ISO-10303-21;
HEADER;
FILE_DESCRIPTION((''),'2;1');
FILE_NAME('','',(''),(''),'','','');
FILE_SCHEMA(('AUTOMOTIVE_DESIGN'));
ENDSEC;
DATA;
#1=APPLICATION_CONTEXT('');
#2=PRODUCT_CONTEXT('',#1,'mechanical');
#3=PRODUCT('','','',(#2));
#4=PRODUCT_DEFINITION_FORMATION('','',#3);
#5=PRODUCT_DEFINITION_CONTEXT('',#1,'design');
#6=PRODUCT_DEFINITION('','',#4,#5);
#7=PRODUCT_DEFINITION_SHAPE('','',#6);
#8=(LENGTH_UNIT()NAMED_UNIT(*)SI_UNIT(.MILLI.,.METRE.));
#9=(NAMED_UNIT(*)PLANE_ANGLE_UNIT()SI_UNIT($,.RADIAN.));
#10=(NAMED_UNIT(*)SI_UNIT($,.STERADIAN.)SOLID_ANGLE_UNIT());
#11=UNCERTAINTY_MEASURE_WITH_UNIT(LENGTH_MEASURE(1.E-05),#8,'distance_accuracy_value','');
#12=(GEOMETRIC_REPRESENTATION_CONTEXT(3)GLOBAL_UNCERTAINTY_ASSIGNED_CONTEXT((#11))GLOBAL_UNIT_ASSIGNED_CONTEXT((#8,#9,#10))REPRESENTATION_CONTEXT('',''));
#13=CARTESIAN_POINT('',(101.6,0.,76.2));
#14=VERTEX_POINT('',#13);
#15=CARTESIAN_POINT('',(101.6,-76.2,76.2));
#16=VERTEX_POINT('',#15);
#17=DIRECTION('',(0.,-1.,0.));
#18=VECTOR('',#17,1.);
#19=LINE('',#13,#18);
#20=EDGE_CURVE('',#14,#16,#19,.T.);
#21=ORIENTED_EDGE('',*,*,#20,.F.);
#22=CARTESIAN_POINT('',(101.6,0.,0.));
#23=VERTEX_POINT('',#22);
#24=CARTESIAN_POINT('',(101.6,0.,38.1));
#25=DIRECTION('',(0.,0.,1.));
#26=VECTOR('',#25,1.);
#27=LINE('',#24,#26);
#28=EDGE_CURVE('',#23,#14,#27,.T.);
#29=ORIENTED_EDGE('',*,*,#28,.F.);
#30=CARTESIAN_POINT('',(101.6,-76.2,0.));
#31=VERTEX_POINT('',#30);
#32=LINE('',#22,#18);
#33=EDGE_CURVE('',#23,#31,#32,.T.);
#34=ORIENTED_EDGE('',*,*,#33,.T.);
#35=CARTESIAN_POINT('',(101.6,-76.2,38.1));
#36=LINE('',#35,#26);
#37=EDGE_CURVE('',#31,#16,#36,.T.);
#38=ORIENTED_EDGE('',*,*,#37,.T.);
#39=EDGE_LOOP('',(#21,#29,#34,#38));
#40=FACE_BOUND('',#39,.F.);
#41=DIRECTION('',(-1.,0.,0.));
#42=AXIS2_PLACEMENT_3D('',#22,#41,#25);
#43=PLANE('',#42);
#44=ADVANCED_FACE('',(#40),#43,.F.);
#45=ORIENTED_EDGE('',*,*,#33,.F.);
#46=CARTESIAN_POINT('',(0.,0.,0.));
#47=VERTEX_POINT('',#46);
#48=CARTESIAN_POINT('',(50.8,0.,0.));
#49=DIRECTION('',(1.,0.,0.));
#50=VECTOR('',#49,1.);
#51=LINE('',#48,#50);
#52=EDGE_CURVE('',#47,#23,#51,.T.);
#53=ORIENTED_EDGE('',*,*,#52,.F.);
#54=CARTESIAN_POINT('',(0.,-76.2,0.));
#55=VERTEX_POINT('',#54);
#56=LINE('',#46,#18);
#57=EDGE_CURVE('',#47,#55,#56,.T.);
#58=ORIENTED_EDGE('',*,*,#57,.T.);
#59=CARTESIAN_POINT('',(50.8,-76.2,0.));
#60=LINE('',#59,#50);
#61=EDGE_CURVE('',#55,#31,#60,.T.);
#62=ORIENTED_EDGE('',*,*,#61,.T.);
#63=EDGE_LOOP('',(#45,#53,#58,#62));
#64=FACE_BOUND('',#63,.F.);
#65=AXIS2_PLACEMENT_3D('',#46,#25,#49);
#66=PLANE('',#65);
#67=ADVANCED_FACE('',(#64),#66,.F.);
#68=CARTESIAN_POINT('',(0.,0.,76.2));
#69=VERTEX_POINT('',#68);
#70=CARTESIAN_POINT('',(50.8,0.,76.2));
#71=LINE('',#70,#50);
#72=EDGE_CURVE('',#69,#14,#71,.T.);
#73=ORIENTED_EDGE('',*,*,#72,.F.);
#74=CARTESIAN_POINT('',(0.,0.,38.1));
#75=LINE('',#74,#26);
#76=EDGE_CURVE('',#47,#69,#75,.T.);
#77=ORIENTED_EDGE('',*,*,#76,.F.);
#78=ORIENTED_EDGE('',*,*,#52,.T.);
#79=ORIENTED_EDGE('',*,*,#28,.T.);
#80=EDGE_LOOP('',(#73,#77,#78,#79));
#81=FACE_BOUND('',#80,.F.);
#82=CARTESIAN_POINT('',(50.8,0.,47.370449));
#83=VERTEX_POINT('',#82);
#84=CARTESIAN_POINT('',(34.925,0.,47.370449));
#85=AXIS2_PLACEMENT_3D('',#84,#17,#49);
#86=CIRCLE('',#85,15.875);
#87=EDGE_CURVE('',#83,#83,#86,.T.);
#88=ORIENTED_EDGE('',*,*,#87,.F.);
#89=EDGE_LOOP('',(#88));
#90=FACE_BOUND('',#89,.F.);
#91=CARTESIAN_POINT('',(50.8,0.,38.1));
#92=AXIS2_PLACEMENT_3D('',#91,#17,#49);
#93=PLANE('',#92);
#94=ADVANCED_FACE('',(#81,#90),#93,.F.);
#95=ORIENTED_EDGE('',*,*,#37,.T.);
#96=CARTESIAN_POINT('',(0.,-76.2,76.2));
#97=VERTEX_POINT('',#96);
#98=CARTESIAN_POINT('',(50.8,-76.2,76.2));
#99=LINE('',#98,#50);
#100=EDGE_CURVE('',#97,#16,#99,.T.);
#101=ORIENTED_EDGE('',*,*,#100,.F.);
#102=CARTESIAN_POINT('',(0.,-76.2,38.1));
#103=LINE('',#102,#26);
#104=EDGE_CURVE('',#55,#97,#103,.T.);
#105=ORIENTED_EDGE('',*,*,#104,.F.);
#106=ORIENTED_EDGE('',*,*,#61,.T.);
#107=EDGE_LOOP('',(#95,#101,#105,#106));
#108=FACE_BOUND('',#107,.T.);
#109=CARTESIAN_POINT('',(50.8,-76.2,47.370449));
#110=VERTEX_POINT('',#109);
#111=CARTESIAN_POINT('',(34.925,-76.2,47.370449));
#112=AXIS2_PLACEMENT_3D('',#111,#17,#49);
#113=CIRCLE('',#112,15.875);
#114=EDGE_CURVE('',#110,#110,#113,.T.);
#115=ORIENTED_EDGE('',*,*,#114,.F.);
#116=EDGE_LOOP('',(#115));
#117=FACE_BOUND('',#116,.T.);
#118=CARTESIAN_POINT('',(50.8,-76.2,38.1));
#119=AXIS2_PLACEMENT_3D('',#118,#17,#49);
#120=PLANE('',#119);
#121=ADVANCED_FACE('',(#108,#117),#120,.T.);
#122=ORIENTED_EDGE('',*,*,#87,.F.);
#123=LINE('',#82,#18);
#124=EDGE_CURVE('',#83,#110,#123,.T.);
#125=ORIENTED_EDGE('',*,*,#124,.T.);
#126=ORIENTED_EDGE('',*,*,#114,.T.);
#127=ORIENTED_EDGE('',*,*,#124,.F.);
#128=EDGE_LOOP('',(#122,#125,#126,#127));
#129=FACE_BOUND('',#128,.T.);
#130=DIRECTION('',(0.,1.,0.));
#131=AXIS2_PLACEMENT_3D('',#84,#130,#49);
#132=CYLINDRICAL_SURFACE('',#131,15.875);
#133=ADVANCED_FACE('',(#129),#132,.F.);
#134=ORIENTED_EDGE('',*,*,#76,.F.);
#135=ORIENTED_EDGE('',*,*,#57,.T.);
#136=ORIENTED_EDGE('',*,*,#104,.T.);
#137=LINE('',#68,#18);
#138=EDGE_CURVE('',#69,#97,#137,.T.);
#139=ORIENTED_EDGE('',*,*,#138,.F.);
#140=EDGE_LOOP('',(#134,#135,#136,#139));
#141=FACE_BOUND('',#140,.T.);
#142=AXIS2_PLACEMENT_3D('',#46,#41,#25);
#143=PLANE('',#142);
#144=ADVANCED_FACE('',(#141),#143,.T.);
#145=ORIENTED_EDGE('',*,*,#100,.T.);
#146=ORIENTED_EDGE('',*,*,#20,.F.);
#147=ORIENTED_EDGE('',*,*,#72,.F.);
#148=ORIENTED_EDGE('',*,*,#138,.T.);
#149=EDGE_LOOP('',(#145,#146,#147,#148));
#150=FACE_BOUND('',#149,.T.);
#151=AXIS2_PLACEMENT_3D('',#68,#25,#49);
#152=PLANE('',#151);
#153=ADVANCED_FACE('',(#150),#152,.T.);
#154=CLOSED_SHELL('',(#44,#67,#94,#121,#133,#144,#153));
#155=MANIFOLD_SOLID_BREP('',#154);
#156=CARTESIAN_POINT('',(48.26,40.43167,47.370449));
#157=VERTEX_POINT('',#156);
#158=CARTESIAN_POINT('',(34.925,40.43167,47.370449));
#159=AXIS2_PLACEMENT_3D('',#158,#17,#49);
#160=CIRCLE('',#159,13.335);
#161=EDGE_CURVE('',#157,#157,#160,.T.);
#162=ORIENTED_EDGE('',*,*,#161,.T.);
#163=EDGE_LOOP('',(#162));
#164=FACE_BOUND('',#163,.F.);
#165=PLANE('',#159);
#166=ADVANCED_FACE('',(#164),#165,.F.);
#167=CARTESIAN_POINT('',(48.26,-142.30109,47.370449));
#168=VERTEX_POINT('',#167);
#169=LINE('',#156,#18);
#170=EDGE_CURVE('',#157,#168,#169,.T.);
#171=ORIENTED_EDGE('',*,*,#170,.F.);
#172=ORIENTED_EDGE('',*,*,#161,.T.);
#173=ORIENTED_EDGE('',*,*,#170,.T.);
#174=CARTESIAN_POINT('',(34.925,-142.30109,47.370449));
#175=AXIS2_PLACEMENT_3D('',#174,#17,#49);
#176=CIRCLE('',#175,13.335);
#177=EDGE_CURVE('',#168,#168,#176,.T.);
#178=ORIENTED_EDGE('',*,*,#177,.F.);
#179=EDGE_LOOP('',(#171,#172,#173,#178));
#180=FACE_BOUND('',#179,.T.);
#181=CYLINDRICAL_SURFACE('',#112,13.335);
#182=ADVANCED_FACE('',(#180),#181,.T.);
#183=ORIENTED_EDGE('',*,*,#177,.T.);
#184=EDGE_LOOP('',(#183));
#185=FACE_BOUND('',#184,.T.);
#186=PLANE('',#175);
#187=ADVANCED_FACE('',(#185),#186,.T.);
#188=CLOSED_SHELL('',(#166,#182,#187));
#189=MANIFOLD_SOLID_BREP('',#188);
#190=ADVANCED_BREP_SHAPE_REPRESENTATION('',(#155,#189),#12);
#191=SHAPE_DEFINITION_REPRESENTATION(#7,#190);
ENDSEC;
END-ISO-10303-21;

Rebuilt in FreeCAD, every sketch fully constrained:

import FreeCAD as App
import Part
import Sketcher
from FreeCAD import Vector
Q = App.Units.Quantity


def add_polygon(sketch, points):
    """Adds a closed chain of lines whose ends are joined by coincident constraints."""
    first, n = sketch.GeometryCount, len(points)
    for a, b in zip(points, points[1:] + points[:1]):
        sketch.addGeometry(Part.LineSegment(App.Vector(*a, 0), App.Vector(*b, 0)), False)
    for i in range(n):
        sketch.addConstraint(Sketcher.Constraint("Coincident", first + i, 2, first + (i + 1) % n, 1))

doc = App.newDocument("Part")
body = doc.addObject("PartDesign::Body", "Body")

# Sketch on XZ plane
sketch1 = body.newObject("Sketcher::SketchObject", "Sketch")
sketch1.AttachmentSupport = (doc.getObject("XZ_Plane"), [""])
sketch1.MapMode = "FlatFace"
add_polygon(sketch1, [(0, 76.2), (0, 0), (101.6, 0), (101.6, 76.2)])  # lines 0-3
sketch1.addGeometry(Part.Circle(Vector(34.925, 47.370449, 0), Vector(0, 0, 1), 15.875), False)  # 4
sketch1.addConstraint(Sketcher.Constraint("Vertical", 0))
sketch1.addConstraint(Sketcher.Constraint("Horizontal", 1))
sketch1.addConstraint(Sketcher.Constraint("Vertical", 2))
sketch1.addConstraint(Sketcher.Constraint("Horizontal", 3))
sketch1.addConstraint(Sketcher.Constraint("Coincident", 0, 2, -1, 1))
sketch1.addConstraint(Sketcher.Constraint("Diameter", 4, Q("1.25 in")))
sketch1.addConstraint(Sketcher.Constraint("DistanceX", 1, 1, 1, 2, Q("4 in")))
sketch1.addConstraint(Sketcher.Constraint("DistanceY", 0, 2, 0, 1, Q("3 in")))
sketch1.addConstraint(Sketcher.Constraint("DistanceX", -1, 1, 4, 3, Q("1.375 in")))
sketch1.addConstraint(Sketcher.Constraint("DistanceY", -1, 1, 4, 3, Q("47.370449 mm")))
pad1 = body.newObject("PartDesign::Pad", "Pad")
pad1.Profile = sketch1
pad1.Length = Q("3 in")
body2 = doc.addObject("PartDesign::Body", "Body001")

# Sketch on XZ plane
sketch2 = body2.newObject("Sketcher::SketchObject", "Sketch001")
sketch2.AttachmentSupport = (doc.getObject("XZ_Plane001"), [""])
sketch2.MapMode = "FlatFace"
sketch2.AttachmentOffset = App.Placement(Vector(0, 0, 3 * 25.4), App.Rotation())
sketch2.addGeometry(Part.Circle(Vector(34.925, 47.370449, 0), Vector(0, 0, 1), 13.335), False)
sketch2.addConstraint(Sketcher.Constraint("Diameter", 0, Q("1.05 in")))
sketch2.addConstraint(Sketcher.Constraint("DistanceX", -1, 1, 0, 3, Q("1.375 in")))
sketch2.addConstraint(Sketcher.Constraint("DistanceY", -1, 1, 0, 3, Q("47.370449 mm")))
pad2 = body2.newObject("PartDesign::Pad", "Pad001")
pad2.Profile = sketch2
pad2.Type = "TwoLengths"
pad2.Length = 66.10109
pad2.Length2 = 116.63167

doc.recompute()
